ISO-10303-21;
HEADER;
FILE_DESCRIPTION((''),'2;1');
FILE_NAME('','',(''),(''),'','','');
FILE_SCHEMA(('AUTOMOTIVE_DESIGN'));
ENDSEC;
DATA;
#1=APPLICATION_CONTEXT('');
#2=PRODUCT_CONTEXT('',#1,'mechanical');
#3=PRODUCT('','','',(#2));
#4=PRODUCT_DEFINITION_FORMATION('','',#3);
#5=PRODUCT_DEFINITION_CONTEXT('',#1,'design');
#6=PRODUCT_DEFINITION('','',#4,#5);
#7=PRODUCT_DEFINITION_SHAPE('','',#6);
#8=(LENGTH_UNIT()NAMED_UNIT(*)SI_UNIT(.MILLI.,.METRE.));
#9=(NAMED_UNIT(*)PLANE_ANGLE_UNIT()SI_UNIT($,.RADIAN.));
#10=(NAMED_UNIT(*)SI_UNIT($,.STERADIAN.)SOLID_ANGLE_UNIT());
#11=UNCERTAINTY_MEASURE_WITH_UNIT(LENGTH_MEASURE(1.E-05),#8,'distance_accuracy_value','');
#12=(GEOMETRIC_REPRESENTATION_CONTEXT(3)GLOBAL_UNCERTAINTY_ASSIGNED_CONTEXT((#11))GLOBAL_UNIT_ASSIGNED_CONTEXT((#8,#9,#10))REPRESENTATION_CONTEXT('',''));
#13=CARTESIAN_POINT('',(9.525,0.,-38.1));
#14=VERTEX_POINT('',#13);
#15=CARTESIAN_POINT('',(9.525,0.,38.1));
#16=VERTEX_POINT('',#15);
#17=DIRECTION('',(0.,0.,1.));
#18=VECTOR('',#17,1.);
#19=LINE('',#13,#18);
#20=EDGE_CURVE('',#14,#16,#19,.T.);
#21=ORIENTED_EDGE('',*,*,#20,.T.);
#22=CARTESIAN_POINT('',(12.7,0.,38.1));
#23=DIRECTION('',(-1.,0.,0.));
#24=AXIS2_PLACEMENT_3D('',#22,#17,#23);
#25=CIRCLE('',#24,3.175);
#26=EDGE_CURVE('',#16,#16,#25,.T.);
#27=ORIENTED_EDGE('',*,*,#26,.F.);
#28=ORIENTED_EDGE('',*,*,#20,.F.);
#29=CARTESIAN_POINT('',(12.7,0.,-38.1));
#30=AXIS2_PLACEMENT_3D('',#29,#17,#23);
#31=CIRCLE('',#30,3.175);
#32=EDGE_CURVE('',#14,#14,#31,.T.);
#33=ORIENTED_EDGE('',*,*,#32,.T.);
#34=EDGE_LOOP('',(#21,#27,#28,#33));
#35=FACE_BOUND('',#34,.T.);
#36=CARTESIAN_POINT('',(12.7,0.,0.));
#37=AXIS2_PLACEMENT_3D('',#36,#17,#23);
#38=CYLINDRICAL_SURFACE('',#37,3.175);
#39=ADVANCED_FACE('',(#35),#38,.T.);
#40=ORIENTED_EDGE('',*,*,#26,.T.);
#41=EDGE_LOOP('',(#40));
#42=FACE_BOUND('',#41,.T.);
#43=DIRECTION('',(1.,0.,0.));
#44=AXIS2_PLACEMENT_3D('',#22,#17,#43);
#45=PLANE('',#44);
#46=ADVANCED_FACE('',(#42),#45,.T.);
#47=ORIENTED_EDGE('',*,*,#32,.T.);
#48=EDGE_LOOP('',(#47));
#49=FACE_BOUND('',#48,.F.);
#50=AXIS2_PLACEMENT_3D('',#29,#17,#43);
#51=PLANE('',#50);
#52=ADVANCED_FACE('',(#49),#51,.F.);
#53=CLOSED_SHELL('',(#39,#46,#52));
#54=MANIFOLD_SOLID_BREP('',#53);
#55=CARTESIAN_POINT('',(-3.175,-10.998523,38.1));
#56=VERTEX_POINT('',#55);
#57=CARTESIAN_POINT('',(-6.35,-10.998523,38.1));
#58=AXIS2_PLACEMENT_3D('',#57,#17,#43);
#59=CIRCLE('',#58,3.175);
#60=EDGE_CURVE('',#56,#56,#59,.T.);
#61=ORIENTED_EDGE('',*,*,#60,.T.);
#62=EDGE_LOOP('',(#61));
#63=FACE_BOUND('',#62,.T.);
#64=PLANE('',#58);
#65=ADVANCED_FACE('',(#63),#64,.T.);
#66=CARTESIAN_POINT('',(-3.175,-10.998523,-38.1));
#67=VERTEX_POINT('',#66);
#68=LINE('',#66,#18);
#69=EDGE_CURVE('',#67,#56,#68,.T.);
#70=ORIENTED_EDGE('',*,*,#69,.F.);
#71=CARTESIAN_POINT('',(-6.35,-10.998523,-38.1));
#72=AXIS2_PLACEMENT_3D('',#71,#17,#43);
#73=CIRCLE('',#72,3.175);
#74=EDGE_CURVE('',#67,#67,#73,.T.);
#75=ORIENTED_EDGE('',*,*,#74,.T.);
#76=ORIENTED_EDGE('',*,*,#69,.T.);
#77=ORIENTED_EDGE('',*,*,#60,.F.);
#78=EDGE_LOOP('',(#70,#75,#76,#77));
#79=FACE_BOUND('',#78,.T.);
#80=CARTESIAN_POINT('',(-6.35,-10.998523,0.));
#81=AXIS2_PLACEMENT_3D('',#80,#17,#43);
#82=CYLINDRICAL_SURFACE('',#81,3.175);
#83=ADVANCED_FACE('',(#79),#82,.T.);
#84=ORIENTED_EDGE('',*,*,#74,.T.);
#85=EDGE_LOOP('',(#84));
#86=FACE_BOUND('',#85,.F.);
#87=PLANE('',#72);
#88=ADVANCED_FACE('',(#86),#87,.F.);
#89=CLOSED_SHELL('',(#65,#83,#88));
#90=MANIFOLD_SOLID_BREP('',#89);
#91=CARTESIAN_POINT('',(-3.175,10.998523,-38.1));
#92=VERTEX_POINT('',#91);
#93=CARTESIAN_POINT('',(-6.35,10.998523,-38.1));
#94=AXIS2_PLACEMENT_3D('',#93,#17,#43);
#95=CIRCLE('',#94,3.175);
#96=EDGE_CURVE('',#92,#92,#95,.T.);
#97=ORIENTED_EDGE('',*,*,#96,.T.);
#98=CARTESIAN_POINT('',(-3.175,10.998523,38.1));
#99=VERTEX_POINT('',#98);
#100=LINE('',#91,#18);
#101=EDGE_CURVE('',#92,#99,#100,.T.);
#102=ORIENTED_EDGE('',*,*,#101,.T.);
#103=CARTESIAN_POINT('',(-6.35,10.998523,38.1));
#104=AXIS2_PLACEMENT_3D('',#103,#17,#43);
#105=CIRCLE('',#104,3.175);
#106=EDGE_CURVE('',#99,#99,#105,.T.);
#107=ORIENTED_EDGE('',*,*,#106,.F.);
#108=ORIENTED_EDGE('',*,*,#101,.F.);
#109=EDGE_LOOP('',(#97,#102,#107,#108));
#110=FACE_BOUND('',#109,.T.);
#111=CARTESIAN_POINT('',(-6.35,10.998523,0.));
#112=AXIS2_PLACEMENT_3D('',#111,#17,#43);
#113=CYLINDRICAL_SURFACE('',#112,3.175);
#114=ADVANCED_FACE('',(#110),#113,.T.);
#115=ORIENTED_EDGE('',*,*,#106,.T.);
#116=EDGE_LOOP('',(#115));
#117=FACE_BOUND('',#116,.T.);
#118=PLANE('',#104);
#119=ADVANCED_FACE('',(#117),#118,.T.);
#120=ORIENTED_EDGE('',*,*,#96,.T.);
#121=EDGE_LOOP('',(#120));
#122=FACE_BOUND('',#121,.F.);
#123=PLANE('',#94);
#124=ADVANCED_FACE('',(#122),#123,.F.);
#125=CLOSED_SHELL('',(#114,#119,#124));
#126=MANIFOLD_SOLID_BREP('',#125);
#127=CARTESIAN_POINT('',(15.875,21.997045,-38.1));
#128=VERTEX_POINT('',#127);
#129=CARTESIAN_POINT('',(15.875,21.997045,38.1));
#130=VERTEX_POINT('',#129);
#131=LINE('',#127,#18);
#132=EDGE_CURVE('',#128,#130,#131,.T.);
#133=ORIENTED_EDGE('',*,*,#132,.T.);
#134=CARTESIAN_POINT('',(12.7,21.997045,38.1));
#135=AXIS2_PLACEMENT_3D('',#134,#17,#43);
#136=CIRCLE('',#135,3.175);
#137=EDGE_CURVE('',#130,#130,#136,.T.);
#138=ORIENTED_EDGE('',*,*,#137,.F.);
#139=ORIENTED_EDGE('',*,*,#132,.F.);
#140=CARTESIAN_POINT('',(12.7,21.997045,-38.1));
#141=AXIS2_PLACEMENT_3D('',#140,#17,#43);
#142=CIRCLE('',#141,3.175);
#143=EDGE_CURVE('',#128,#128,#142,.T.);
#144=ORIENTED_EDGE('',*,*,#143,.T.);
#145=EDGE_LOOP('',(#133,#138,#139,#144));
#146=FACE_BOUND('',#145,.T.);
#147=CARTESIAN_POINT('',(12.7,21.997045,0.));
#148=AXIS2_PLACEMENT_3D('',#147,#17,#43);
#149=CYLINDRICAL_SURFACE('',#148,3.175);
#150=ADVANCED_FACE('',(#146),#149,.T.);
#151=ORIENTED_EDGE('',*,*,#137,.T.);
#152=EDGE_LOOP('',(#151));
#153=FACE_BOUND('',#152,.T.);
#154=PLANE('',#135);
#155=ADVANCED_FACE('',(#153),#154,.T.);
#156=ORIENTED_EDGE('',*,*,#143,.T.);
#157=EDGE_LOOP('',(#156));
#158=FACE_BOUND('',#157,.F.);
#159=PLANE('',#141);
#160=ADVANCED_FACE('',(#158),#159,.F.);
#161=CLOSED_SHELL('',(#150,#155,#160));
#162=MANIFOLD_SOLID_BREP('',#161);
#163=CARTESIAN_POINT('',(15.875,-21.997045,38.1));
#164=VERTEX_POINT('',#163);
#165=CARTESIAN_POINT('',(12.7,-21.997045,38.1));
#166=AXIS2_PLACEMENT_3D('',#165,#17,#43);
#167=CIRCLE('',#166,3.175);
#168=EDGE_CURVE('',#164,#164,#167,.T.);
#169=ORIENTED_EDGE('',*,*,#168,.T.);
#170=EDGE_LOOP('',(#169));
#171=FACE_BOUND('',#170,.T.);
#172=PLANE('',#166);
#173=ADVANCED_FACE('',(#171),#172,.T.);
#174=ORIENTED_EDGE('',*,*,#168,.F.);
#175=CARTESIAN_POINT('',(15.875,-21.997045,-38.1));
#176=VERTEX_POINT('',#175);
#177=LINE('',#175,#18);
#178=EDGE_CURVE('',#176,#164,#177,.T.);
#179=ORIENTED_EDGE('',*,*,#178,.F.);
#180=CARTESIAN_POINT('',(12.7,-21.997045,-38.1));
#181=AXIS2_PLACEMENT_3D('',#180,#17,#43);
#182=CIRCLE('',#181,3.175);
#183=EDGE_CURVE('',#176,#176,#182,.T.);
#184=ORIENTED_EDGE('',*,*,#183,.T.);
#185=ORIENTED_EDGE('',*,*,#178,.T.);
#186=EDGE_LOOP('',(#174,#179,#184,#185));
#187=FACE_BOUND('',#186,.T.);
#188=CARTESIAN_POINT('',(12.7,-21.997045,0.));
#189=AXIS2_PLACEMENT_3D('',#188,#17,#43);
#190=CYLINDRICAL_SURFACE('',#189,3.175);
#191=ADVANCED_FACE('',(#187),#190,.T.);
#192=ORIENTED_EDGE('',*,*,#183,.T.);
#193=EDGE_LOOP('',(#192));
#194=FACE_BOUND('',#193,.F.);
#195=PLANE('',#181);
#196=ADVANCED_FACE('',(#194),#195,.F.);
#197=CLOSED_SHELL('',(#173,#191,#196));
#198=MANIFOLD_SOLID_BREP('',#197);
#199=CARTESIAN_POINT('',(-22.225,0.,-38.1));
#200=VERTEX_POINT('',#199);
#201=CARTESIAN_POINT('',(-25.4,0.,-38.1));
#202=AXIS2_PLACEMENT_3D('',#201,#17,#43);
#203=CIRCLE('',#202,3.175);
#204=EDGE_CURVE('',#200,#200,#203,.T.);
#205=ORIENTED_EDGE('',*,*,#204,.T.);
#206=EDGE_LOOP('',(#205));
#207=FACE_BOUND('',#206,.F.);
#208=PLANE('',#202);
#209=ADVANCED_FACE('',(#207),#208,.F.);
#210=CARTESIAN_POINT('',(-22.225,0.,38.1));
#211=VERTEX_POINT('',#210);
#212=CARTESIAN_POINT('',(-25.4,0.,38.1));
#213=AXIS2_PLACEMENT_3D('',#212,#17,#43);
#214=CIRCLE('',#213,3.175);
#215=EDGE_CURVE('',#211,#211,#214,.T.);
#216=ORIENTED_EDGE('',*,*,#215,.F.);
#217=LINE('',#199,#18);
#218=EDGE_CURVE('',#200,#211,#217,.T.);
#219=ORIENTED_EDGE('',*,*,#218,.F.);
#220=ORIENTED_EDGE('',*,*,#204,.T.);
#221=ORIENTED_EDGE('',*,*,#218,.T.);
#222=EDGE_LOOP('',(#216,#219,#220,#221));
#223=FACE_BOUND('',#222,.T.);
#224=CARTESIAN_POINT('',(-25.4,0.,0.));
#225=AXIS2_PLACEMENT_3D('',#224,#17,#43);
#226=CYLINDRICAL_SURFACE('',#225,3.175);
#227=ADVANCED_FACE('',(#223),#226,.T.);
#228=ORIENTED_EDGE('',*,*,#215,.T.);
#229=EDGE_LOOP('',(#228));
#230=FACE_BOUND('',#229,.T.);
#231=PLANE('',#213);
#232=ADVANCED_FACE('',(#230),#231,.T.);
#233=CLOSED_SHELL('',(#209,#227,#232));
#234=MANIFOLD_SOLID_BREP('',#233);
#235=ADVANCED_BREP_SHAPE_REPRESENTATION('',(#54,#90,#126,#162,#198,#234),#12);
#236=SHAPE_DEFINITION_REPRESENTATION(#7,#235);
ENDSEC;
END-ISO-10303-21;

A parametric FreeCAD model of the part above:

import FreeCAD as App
import Part
import Sketcher
from FreeCAD import Vector
Q = App.Units.Quantity

doc = App.newDocument("Part")
body = doc.addObject("PartDesign::Body", "Body")

# Sketch on XY plane
sketch1 = body.newObject("Sketcher::SketchObject", "Sketch")
sketch1.AttachmentSupport = (doc.getObject("XY_Plane"), [""])
sketch1.MapMode = "FlatFace"
sketch1.addGeometry(Part.Circle(Vector(12.7, -21.997045, 0), Vector(0, 0, 1), 3.175), False)
sketch1.addConstraint([
    Sketcher.Constraint("Diameter", 0, Q("0.25 in")),
    Sketcher.Constraint("DistanceX", -1, 1, 0, 3, Q("0.5 in")),
    Sketcher.Constraint("DistanceY", 0, 3, -1, 1, Q("21.997045 mm")),
])
pad1 = body.newObject("PartDesign::Pad", "Pad")
pad1.Profile = sketch1
pad1.Length = Q("3 in")
pad1.Midplane = True
body2 = doc.addObject("PartDesign::Body", "Body001")

# Sketch on XY plane
sketch2 = body2.newObject("Sketcher::SketchObject", "Sketch001")
sketch2.AttachmentSupport = (doc.getObject("XY_Plane001"), [""])
sketch2.MapMode = "FlatFace"
sketch2.addGeometry(Part.Circle(Vector(-6.35, 10.998523, 0), Vector(0, 0, 1), 3.175), False)
sketch2.addConstraint([
    Sketcher.Constraint("Diameter", 0, Q("0.25 in")),
    Sketcher.Constraint("DistanceX", 0, 3, -1, 1, Q("0.25 in")),
    Sketcher.Constraint("DistanceY", -1, 1, 0, 3, Q("10.998523 mm")),
])
pad2 = body2.newObject("PartDesign::Pad", "Pad001")
pad2.Profile = sketch2
pad2.Length = Q("3 in")
pad2.Midplane = True
body3 = doc.addObject("PartDesign::Body", "Body002")

# Sketch on XY plane
sketch3 = body3.newObject("Sketcher::SketchObject", "Sketch002")
sketch3.AttachmentSupport = (doc.getObject("XY_Plane002"), [""])
sketch3.MapMode = "FlatFace"
sketch3.addGeometry(Part.Circle(Vector(-25.4, 0, 0), Vector(0, 0, 1), 3.175), False)
sketch3.addConstraint([
    Sketcher.Constraint("PointOnObject", 0, 3, -1),
    Sketcher.Constraint("Diameter", 0, Q("0.25 in")),
    Sketcher.Constraint("DistanceX", 0, 3, -1, 1, Q("1 in")),
])
pad3 = body3.newObject("PartDesign::Pad", "Pad002")
pad3.Profile = sketch3
pad3.Length = Q("3 in")
pad3.Midplane = True
body4 = doc.addObject("PartDesign::Body", "Body003")

# Sketch on XY plane
sketch4 = body4.newObject("Sketcher::SketchObject", "Sketch003")
sketch4.AttachmentSupport = (doc.getObject("XY_Plane003"), [""])
sketch4.MapMode = "FlatFace"
sketch4.addGeometry(Part.Circle(Vector(12.7, 0, 0), Vector(0, 0, 1), 3.175), False)
sketch4.addConstraint([
    Sketcher.Constraint("PointOnObject", 0, 3, -1),
    Sketcher.Constraint("Diameter", 0, Q("0.25 in")),
    Sketcher.Constraint("DistanceX", -1, 1, 0, 3, Q("0.5 in")),
])
pad4 = body4.newObject("PartDesign::Pad", "Pad003")
pad4.Profile = sketch4
pad4.Length = Q("3 in")
pad4.Midplane = True
body5 = doc.addObject("PartDesign::Body", "Body004")

# Sketch on XY plane
sketch5 = body5.newObject("Sketcher::SketchObject", "Sketch004")
sketch5.AttachmentSupport = (doc.getObject("XY_Plane004"), [""])
sketch5.MapMode = "FlatFace"
sketch5.addGeometry(Part.Circle(Vector(-6.35, -10.998523, 0), Vector(0, 0, 1), 3.175), False)
sketch5.addConstraint([
    Sketcher.Constraint("Diameter", 0, Q("0.25 in")),
    Sketcher.Constraint("DistanceX", 0, 3, -1, 1, Q("0.25 in")),
    Sketcher.Constraint("DistanceY", 0, 3, -1, 1, Q("10.998523 mm")),
])
pad5 = body5.newObject("PartDesign::Pad", "Pad004")
pad5.Profile = sketch5
pad5.Length = Q("3 in")
pad5.Midplane = True
body6 = doc.addObject("PartDesign::Body", "Body005")

# Sketch on XY plane
sketch6 = body6.newObject("Sketcher::SketchObject", "Sketch005")
sketch6.AttachmentSupport = (doc.getObject("XY_Plane005"), [""])
sketch6.MapMode = "FlatFace"
sketch6.addGeometry(Part.Circle(Vector(12.7, 21.997045, 0), Vector(0, 0, 1), 3.175), False)
sketch6.addConstraint([
    Sketcher.Constraint("Diameter", 0, Q("0.25 in")),
    Sketcher.Constraint("DistanceX", -1, 1, 0, 3, Q("0.5 in")),
    Sketcher.Constraint("DistanceY", -1, 1, 0, 3, Q("21.997045 mm")),
])
pad6 = body6.newObject("PartDesign::Pad", "Pad005")
pad6.Profile = sketch6
pad6.Length = Q("3 in")
pad6.Midplane = True

doc.recompute()
